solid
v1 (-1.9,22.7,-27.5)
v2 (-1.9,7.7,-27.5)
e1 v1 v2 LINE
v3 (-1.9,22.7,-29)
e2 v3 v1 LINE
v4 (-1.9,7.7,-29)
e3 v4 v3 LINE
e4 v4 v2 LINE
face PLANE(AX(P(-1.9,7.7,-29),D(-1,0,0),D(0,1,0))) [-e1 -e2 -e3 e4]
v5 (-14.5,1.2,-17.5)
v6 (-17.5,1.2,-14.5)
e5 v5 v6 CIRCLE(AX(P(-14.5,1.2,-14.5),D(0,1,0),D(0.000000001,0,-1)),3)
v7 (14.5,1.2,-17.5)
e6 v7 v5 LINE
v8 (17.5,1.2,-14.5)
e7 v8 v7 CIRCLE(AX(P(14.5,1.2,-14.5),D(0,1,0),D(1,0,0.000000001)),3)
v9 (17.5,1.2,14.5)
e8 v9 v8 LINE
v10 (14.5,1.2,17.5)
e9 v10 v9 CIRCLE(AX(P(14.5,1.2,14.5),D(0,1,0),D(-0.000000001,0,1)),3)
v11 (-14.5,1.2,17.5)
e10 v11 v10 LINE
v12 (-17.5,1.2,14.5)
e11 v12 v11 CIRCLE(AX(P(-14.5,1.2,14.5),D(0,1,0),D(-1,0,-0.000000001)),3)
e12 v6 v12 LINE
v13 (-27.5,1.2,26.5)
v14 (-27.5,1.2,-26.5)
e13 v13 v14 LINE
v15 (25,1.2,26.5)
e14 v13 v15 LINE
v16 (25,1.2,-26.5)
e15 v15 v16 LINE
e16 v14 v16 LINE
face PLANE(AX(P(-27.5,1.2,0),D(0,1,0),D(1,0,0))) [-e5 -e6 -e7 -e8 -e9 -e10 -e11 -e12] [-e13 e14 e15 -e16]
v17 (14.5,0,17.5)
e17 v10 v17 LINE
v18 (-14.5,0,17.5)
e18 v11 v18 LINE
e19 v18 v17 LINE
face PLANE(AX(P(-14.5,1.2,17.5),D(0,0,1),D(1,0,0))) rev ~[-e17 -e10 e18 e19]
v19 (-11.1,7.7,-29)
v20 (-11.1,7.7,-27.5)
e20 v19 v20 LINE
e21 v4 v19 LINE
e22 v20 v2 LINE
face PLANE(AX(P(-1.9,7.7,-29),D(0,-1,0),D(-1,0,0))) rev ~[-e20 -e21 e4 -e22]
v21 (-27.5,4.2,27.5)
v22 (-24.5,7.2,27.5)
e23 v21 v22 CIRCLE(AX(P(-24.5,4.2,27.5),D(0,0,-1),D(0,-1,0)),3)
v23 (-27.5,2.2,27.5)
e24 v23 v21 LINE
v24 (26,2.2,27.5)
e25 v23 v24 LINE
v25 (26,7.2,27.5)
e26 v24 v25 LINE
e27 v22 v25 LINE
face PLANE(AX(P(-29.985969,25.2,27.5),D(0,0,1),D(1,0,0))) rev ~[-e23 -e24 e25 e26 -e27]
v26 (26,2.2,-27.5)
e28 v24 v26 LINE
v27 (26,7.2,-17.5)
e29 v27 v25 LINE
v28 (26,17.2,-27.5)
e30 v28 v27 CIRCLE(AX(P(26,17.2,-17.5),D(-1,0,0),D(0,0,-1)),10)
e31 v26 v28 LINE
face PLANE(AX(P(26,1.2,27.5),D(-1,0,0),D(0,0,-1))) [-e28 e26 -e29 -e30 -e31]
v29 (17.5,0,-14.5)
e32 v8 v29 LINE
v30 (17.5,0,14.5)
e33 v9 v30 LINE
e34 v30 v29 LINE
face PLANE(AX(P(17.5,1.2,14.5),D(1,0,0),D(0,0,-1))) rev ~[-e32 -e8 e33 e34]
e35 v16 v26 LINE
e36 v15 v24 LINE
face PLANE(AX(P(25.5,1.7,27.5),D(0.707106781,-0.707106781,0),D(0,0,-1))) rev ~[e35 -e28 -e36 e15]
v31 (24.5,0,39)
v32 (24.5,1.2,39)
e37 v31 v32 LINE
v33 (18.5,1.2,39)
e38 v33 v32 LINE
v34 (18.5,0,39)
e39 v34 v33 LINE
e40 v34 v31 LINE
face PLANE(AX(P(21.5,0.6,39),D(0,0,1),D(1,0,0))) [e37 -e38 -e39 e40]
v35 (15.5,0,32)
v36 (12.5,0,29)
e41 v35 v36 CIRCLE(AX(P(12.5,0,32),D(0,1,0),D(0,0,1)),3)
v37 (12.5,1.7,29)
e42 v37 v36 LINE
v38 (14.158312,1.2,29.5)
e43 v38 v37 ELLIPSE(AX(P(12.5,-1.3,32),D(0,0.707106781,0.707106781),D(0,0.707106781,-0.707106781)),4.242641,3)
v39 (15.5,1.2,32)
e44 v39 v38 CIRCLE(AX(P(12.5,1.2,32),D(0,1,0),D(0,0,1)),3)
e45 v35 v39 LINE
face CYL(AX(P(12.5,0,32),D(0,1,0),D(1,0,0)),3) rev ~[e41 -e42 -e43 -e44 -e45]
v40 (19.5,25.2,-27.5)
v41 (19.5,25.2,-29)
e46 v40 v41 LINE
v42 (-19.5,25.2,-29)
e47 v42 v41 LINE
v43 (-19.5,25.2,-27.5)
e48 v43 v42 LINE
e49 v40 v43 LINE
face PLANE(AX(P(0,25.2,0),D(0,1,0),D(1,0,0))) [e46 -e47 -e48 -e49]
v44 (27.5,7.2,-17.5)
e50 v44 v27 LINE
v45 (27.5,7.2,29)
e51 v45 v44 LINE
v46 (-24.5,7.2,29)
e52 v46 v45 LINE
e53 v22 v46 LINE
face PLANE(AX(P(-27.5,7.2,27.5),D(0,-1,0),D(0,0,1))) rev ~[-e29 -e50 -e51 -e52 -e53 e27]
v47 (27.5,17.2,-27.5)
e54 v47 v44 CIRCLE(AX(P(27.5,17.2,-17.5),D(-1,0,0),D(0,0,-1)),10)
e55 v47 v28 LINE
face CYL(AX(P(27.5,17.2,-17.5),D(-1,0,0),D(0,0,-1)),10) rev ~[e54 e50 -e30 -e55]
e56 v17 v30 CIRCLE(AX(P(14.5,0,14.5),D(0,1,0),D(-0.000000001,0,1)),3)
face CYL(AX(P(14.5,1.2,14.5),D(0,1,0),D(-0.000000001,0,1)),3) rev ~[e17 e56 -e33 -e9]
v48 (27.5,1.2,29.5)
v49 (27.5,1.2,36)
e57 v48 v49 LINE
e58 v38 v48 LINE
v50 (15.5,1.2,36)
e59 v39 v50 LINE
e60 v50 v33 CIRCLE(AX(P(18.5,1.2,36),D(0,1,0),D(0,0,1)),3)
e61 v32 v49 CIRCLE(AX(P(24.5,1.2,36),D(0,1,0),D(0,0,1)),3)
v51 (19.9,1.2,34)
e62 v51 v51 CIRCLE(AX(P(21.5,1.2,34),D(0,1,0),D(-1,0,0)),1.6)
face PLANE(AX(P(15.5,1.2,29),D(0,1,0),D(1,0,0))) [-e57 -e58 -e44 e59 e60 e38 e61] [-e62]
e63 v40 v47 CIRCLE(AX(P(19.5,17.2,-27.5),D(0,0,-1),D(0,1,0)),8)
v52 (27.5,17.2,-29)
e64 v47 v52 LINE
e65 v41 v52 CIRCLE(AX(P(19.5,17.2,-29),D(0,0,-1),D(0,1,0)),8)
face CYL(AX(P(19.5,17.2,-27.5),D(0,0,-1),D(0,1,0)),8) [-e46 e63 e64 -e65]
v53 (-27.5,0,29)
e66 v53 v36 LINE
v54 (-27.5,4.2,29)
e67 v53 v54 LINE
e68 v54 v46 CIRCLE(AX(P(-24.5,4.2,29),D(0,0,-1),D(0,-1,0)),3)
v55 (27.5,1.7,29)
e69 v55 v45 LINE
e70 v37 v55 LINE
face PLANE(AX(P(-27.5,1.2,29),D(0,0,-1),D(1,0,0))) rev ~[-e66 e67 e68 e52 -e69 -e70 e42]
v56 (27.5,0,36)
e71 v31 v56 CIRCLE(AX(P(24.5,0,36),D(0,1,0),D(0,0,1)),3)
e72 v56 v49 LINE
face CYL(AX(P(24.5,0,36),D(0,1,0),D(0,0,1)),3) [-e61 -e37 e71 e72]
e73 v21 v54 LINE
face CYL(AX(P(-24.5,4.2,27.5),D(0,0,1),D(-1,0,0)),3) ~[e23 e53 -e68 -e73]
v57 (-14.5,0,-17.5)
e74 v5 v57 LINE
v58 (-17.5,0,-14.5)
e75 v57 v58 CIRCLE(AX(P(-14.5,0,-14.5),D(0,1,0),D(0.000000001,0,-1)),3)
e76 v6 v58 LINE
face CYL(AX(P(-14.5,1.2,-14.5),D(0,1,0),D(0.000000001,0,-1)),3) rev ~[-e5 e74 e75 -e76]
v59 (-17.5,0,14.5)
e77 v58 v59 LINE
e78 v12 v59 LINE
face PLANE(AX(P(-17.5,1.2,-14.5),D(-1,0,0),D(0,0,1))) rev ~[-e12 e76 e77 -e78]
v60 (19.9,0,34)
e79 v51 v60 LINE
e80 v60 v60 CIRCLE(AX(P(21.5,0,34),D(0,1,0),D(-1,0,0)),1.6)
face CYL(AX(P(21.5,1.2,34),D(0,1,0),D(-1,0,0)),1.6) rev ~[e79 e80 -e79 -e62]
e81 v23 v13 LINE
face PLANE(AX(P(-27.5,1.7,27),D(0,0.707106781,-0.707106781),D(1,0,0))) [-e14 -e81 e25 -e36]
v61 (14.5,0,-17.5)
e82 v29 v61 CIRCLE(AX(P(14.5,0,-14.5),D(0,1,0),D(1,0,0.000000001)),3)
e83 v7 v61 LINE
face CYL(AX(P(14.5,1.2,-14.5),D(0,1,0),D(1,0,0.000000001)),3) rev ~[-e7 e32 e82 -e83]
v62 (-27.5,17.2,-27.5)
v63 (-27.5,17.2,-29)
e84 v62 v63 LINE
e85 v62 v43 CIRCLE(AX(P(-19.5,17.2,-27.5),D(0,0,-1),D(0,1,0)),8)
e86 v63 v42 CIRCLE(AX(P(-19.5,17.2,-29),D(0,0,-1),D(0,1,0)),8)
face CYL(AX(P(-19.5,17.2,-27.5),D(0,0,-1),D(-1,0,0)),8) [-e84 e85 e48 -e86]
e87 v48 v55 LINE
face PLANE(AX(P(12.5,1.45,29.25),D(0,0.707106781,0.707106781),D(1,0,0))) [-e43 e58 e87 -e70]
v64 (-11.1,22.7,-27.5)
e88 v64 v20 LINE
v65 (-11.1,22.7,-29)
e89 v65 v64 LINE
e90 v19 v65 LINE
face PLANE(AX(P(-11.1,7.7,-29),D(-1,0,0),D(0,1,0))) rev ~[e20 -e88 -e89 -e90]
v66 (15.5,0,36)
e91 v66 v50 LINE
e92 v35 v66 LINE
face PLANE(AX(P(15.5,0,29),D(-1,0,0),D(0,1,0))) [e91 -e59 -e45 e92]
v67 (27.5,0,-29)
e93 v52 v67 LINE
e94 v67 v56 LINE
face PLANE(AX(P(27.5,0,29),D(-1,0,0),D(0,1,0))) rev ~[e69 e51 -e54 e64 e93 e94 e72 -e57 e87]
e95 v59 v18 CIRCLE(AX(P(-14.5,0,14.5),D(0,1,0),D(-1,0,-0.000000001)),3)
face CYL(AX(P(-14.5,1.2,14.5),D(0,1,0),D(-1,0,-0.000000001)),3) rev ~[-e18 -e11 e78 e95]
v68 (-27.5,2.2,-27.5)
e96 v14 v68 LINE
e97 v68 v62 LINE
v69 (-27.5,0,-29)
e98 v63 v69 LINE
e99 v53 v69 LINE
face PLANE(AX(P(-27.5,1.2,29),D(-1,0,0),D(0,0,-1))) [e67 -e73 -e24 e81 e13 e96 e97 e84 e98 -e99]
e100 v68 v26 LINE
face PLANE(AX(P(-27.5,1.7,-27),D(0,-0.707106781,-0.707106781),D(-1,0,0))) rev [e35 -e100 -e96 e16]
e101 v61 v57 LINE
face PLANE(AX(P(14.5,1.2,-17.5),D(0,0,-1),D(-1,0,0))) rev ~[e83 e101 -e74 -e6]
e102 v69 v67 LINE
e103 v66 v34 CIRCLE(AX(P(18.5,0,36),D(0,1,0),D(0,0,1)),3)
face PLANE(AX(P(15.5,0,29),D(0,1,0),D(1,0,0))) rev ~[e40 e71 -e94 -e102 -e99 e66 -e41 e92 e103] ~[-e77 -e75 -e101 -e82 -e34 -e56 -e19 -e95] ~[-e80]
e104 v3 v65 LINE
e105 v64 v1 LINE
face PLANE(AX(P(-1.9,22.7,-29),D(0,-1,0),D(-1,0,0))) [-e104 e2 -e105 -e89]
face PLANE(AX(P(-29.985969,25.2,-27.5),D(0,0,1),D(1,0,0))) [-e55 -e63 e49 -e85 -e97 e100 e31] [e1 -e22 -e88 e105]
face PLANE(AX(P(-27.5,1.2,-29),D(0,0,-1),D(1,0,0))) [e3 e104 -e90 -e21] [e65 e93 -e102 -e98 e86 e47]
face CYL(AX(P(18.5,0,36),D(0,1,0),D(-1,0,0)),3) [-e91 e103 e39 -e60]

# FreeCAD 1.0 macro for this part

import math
import FreeCAD as App
import Part
import Sketcher


def edges_at(feature, points):
    """Names of the edges that pass closest to the given points."""
    edges = feature.Shape.Edges
    near = lambda p: min(range(len(edges)), key=lambda i: edges[i].distToShape(Part.Vertex(*p))[0])
    return sorted({f"Edge{near(p) + 1}" for p in points})


def add_polygon(sketch, points):
    """Adds a closed chain of lines whose ends are joined by coincident constraints."""
    first, n = sketch.GeometryCount, len(points)
    for a, b in zip(points, points[1:] + points[:1]):
        sketch.addGeometry(Part.LineSegment(App.Vector(*a, 0), App.Vector(*b, 0)), False)
    for i in range(n):
        sketch.addConstraint(Sketcher.Constraint("Coincident", first + i, 2, first + (i + 1) % n, 1))

doc = App.newDocument("Part")
params = doc.addObject("Spreadsheet::Sheet", "Params")
for row, (alias, value) in enumerate([
    ("sketch1_width", "55 mm"),
    ("sketch1_height", "58 mm"),
    ("pad1_length", "1.2 mm"),
    ("sketch2_width", "55 mm"),
    ("sketch2_width2", "52 mm"),
    ("sketch2_height", "58 mm"),
    ("pad2_length", "24 mm"),
    ("sketch3_height", "55 mm"),
    ("pocket1_length", "24 mm"),
    ("sketch4_height", "15 mm"),
    ("sketch4_width", "9.2 mm"),
    ("pocket2_length", "17 mm"),
    ("sketch5_width", "18 mm"),
    ("sketch5_height", "1.5 mm"),
    ("fillet_radius", "8 mm"),
    ("fillet2_radius", "3 mm"),
    ("chamfer_size", "1 mm"),
    ("sketch6_radius", "3 mm"),
    ("sketch6_width", "29 mm"),
    ("pocket4_length", "17 mm"),
    ("sketch7_width", "18 mm"),
    ("sketch7_height", "55 mm"),
    ("pocket5_length", "17 mm"),
    ("fillet3_radius", "8 mm"),
    ("fillet4_radius", "10 mm"),
    ("sketch8_width", "12 mm"),
    ("sketch8_height", "1.2 mm"),
    ("pad3_length", "10 mm"),
    ("sketch9_diameter", "3.2 mm"),
    ("pocket6_length", "10 mm"),
    ("fillet5_radius", "3 mm"),
    ("fillet6_radius", "3 mm"),
    ("fillet7_radius", "3 mm"),
    ("chamfer2_size", "0.5 mm"),
], start=1):
    params.set(f"A{row}", alias)
    params.set(f"B{row}", "=" + value)
    params.setAlias(f"B{row}", alias)

body = doc.addObject("PartDesign::Body", "Body")

# Sketch on XZ plane
sketch1 = doc.addObject("Sketcher::SketchObject", "Sketch")
body.addObject(sketch1)
sketch1.AttachmentSupport = (doc.XZ_Plane, [""])
sketch1.MapMode = "FlatFace"
add_polygon(sketch1, [(-28, -29), (-28, 29), (28, 29), (28, -29)])  # lines 0-3
sketch1.addConstraint(Sketcher.Constraint("Vertical", 0))
sketch1.addConstraint(Sketcher.Constraint("Horizontal", 1))
sketch1.addConstraint(Sketcher.Constraint("Vertical", 2))
sketch1.addConstraint(Sketcher.Constraint("Horizontal", 3))
sketch1.addConstraint(Sketcher.Constraint("Symmetric", 0, 2, 2, 2, -1, 1))
sketch1.addConstraint(Sketcher.Constraint("DistanceX", 1, 1, 1, 2, 55.0))
sketch1.addConstraint(Sketcher.Constraint("DistanceY", 0, 1, 0, 2, 58.0))
sketch1.setExpression("Constraints[9]", "Params.sketch1_width")
sketch1.setExpression("Constraints[10]", "Params.sketch1_height")
pad1 = doc.addObject("PartDesign::Pad", "Pad")
body.addObject(pad1)
pad1.Profile = sketch1
pad1.setExpression("Length", "Params.pad1_length")
pad1.Reversed = True

# Sketch on XZ plane
sketch2 = doc.addObject("Sketcher::SketchObject", "Sketch001")
body.addObject(sketch2)
sketch2.AttachmentSupport = (doc.XZ_Plane, [""])
sketch2.MapMode = "FlatFace"
sketch2.AttachmentOffset = App.Placement(App.Vector(0, 0, -1.2), App.Rotation())
add_polygon(sketch2, [(-28, -29), (-28, 29), (28, 29), (28, -29)])  # lines 0-3
add_polygon(sketch2, [(26, 28), (-26, 28), (-26, -28), (26, -28)])  # lines 4-7
sketch2.addConstraint(Sketcher.Constraint("Vertical", 0))
sketch2.addConstraint(Sketcher.Constraint("Horizontal", 1))
sketch2.addConstraint(Sketcher.Constraint("Vertical", 2))
sketch2.addConstraint(Sketcher.Constraint("Horizontal", 3))
sketch2.addConstraint(Sketcher.Constraint("Horizontal", 4))
sketch2.addConstraint(Sketcher.Constraint("Vertical", 5))
sketch2.addConstraint(Sketcher.Constraint("Horizontal", 6))
sketch2.addConstraint(Sketcher.Constraint("Vertical", 7))
sketch2.addConstraint(Sketcher.Constraint("Symmetric", 0, 2, 2, 2, -1, 1))
sketch2.addConstraint(Sketcher.Constraint("Symmetric", 4, 2, 6, 2, -1, 1))
sketch2.addConstraint(Sketcher.Constraint("Equal", 3, 5))
sketch2.addConstraint(Sketcher.Constraint("DistanceX", 1, 1, 1, 2, 55.0))
sketch2.addConstraint(Sketcher.Constraint("DistanceX", 4, 2, 4, 1, 52.0))
sketch2.addConstraint(Sketcher.Constraint("DistanceY", 0, 1, 0, 2, 58.0))
sketch2.setExpression("Constraints[19]", "Params.sketch2_width")
sketch2.setExpression("Constraints[20]", "Params.sketch2_width2")
sketch2.setExpression("Constraints[21]", "Params.sketch2_height")
pad2 = doc.addObject("PartDesign::Pad", "Pad001")
body.addObject(pad2)
pad2.Profile = sketch2
pad2.setExpression("Length", "Params.pad2_length")
pad2.Reversed = True

# Sketch on XZ plane
sketch3 = doc.addObject("Sketcher::SketchObject", "Sketch002")
body.addObject(sketch3)
sketch3.AttachmentSupport = (doc.XZ_Plane, [""])
sketch3.MapMode = "FlatFace"
sketch3.AttachmentOffset = App.Placement(App.Vector(0, 0, -25.2), App.Rotation())
add_polygon(sketch3, [(-30, -27.5), (-30, 27.5), (-25, 27.5), (-25, -27.5)])  # lines 0-3
sketch3.addConstraint(Sketcher.Constraint("Vertical", 0))
sketch3.addConstraint(Sketcher.Constraint("Horizontal", 1))
sketch3.addConstraint(Sketcher.Constraint("Vertical", 2))
sketch3.addConstraint(Sketcher.Constraint("Horizontal", 3))
sketch3.addConstraint(Sketcher.Constraint("DistanceY", 0, 1, 0, 2, 55.0))
sketch3.addConstraint(Sketcher.Constraint("DistanceY", -1, 1, 0, 2, 27.5))
sketch3.addConstraint(Sketcher.Constraint("DistanceX", 1, 1, 1, 2, 4.971938))
sketch3.addConstraint(Sketcher.Constraint("DistanceX", 0, 2, -1, 1, 29.985969))
sketch3.setExpression("Constraints[8]", "Params.sketch3_height")
pocket1 = doc.addObject("PartDesign::Pocket", "Pocket")
body.addObject(pocket1)
pocket1.Profile = sketch3
pocket1.setExpression("Length", "Params.pocket1_length")
pocket1.Reversed = True

# Sketch on XY plane
sketch4 = doc.addObject("Sketcher::SketchObject", "Sketch003")
body.addObject(sketch4)
sketch4.AttachmentSupport = (doc.XY_Plane, [""])
sketch4.MapMode = "FlatFace"
sketch4.AttachmentOffset = App.Placement(App.Vector(0, 0, -29), App.Rotation())
add_polygon(sketch4, [(-2, 23), (-2, 8), (-11, 8), (-11, 23)])  # lines 0-3
sketch4.addConstraint(Sketcher.Constraint("Vertical", 0))
sketch4.addConstraint(Sketcher.Constraint("Horizontal", 1))
sketch4.addConstraint(Sketcher.Constraint("Vertical", 2))
sketch4.addConstraint(Sketcher.Constraint("Horizontal", 3))
sketch4.addConstraint(Sketcher.Constraint("DistanceY", 0, 2, 0, 1, 15.0))
sketch4.addConstraint(Sketcher.Constraint("DistanceX", 1, 2, 1, 1, 9.2))
sketch4.addConstraint(Sketcher.Constraint("DistanceX", 0, 2, -1, 1, 1.9))
sketch4.addConstraint(Sketcher.Constraint("DistanceY", -1, 1, 0, 2, 7.7))
sketch4.setExpression("Constraints[8]", "Params.sketch4_height")
sketch4.setExpression("Constraints[9]", "Params.sketch4_width")
pocket2 = doc.addObject("PartDesign::Pocket", "Pocket001")
body.addObject(pocket2)
pocket2.Profile = sketch4
pocket2.setExpression("Length", "Params.pocket2_length")
pocket2.Reversed = True

# Sketch on YZ plane
sketch5 = doc.addObject("Sketcher::SketchObject", "Sketch004")
body.addObject(sketch5)
sketch5.AttachmentSupport = (doc.YZ_Plane, [""])
sketch5.MapMode = "FlatFace"
sketch5.AttachmentOffset = App.Placement(App.Vector(0, 0, -27.5), App.Rotation())
add_polygon(sketch5, [(25.2, 27.5), (7.2, 27.5), (7.2, 29), (25.2, 29)])  # lines 0-3
sketch5.addConstraint(Sketcher.Constraint("Horizontal", 0))
sketch5.addConstraint(Sketcher.Constraint("Vertical", 1))
sketch5.addConstraint(Sketcher.Constraint("Horizontal", 2))
sketch5.addConstraint(Sketcher.Constraint("Vertical", 3))
sketch5.addConstraint(Sketcher.Constraint("DistanceX", 0, 2, 0, 1, 18.0))
sketch5.addConstraint(Sketcher.Constraint("DistanceY", 1, 1, 1, 2, 1.5))
sketch5.addConstraint(Sketcher.Constraint("DistanceY", -1, 1, 1, 2, 29.0))
sketch5.addConstraint(Sketcher.Constraint("DistanceX", -1, 1, 0, 2, 7.2))
sketch5.setExpression("Constraints[8]", "Params.sketch5_width")
sketch5.setExpression("Constraints[9]", "Params.sketch5_height")
pocket3 = doc.addObject("PartDesign::Pocket", "Pocket002")
body.addObject(pocket3)
pocket3.Profile = sketch5
pocket3.Type = "ThroughAll"
pocket3.Reversed = True
doc.recompute()

fillet = doc.addObject("PartDesign::Fillet", "Fillet")
body.addObject(fillet)
fillet.Base = (pocket3, edges_at(pocket3, [(-27.5, 25.2, -28.25)]))
fillet.setExpression("Radius", "Params.fillet_radius")
doc.recompute()

fillet2 = doc.addObject("PartDesign::Fillet", "Fillet001")
body.addObject(fillet2)
fillet2.Base = (fillet, edges_at(fillet, [(-27.5, 7.2, 28.25)]))
fillet2.setExpression("Radius", "Params.fillet2_radius")
doc.recompute()

chamfer = doc.addObject("PartDesign::Chamfer", "Chamfer")
body.addObject(chamfer)
chamfer.Base = (fillet2, edges_at(fillet2, [(26, 1.2, 0), (-0.75, 1.2, -27.5), (-0.75, 1.2, 27.5)]))
chamfer.setExpression("Size", "Params.chamfer_size")

# Sketch on XZ plane
sketch6 = doc.addObject("Sketcher::SketchObject", "Sketch005")
body.addObject(sketch6)
sketch6.AttachmentSupport = (doc.XZ_Plane, [""])
sketch6.MapMode = "FlatFace"
sketch6.AttachmentOffset = App.Placement(App.Vector(0, 0, -1.2), App.Rotation())
sketch6.addGeometry(Part.LineSegment(App.Vector(-14.5, 17.5, 0), App.Vector(14.5, 17.5, 0)), False)
sketch6.addGeometry(Part.ArcOfCircle(Part.Circle(App.Vector(14.5, 14.5, 0), App.Vector(0, 0, 1), 3), math.radians(0), math.radians(90)), False)
sketch6.addGeometry(Part.LineSegment(App.Vector(17.5, 14.5, 0), App.Vector(17.5, -14.5, 0)), False)
sketch6.addGeometry(Part.ArcOfCircle(Part.Circle(App.Vector(14.5, -14.5, 0), App.Vector(0, 0, 1), 3), math.radians(-90), math.radians(0)), False)
sketch6.addGeometry(Part.LineSegment(App.Vector(14.5, -17.5, 0), App.Vector(-14.5, -17.5, 0)), False)
sketch6.addGeometry(Part.ArcOfCircle(Part.Circle(App.Vector(-14.5, -14.5, 0), App.Vector(0, 0, 1), 3), math.radians(180), math.radians(270)), False)
sketch6.addGeometry(Part.LineSegment(App.Vector(-17.5, -14.5, 0), App.Vector(-17.5, 14.5, 0)), False)
sketch6.addGeometry(Part.ArcOfCircle(Part.Circle(App.Vector(-14.5, 14.5, 0), App.Vector(0, 0, 1), 3), math.radians(90), math.radians(180)), False)
sketch6.addConstraint(Sketcher.Constraint("Tangent", 0, 2, 1, 2))
sketch6.addConstraint(Sketcher.Constraint("Tangent", 1, 1, 2, 1))
sketch6.addConstraint(Sketcher.Constraint("Tangent", 2, 2, 3, 2))
sketch6.addConstraint(Sketcher.Constraint("Tangent", 3, 1, 4, 1))
sketch6.addConstraint(Sketcher.Constraint("Tangent", 4, 2, 5, 2))
sketch6.addConstraint(Sketcher.Constraint("Tangent", 5, 1, 6, 1))
sketch6.addConstraint(Sketcher.Constraint("Tangent", 6, 2, 7, 2))
sketch6.addConstraint(Sketcher.Constraint("Tangent", 7, 1, 0, 1))
sketch6.addConstraint(Sketcher.Constraint("Horizontal", 0))
sketch6.addConstraint(Sketcher.Constraint("Vertical", 2))
sketch6.addConstraint(Sketcher.Constraint("Horizontal", 4))
sketch6.addConstraint(Sketcher.Constraint("Vertical", 6))
sketch6.addConstraint(Sketcher.Constraint("Equal", 1, 3))
sketch6.addConstraint(Sketcher.Constraint("Equal", 3, 5))
sketch6.addConstraint(Sketcher.Constraint("Equal", 5, 7))
sketch6.addConstraint(Sketcher.Constraint("Symmetric", 1, 3, 5, 3, -1, 1))
sketch6.addConstraint(Sketcher.Constraint("Equal", 4, 2))
sketch6.addConstraint(Sketcher.Constraint("Radius", 1, 3.0))
sketch6.addConstraint(Sketcher.Constraint("DistanceX", 0, 1, 0, 2, 29.0))
sketch6.setExpression("Constraints[17]", "Params.sketch6_radius")
sketch6.setExpression("Constraints[18]", "Params.sketch6_width")
pocket4 = doc.addObject("PartDesign::Pocket", "Pocket003")
body.addObject(pocket4)
pocket4.Profile = sketch6
pocket4.setExpression("Length", "Params.pocket4_length")
pocket4.Reversed = True

# Sketch on YZ plane
sketch7 = doc.addObject("Sketcher::SketchObject", "Sketch006")
body.addObject(sketch7)
sketch7.AttachmentSupport = (doc.YZ_Plane, [""])
sketch7.MapMode = "FlatFace"
sketch7.AttachmentOffset = App.Placement(App.Vector(0, 0, 27.5), App.Rotation())
add_polygon(sketch7, [(25, 28), (7, 28), (7, -28), (25, -28)])  # lines 0-3
sketch7.addConstraint(Sketcher.Constraint("Horizontal", 0))
sketch7.addConstraint(Sketcher.Constraint("Vertical", 1))
sketch7.addConstraint(Sketcher.Constraint("Horizontal", 2))
sketch7.addConstraint(Sketcher.Constraint("Vertical", 3))
sketch7.addConstraint(Sketcher.Constraint("DistanceX", 0, 2, 0, 1, 18.0))
sketch7.addConstraint(Sketcher.Constraint("DistanceY", 1, 2, 1, 1, 55.0))
sketch7.addConstraint(Sketcher.Constraint("DistanceX", -1, 1, 0, 2, 7.2))
sketch7.addConstraint(Sketcher.Constraint("DistanceY", -1, 1, 0, 2, 27.5))
sketch7.setExpression("Constraints[8]", "Params.sketch7_width")
sketch7.setExpression("Constraints[9]", "Params.sketch7_height")
pocket5 = doc.addObject("PartDesign::Pocket", "Pocket004")
body.addObject(pocket5)
pocket5.Profile = sketch7
pocket5.setExpression("Length", "Params.pocket5_length")
doc.recompute()

fillet3 = doc.addObject("PartDesign::Fillet", "Fillet002")
body.addObject(fillet3)
fillet3.Base = (pocket5, edges_at(pocket5, [(27.5, 25.2, -28.25)]))
fillet3.setExpression("Radius", "Params.fillet3_radius")
doc.recompute()

fillet4 = doc.addObject("PartDesign::Fillet", "Fillet003")
body.addObject(fillet4)
fillet4.Base = (fillet3, edges_at(fillet3, [(26.75, 7.2, -27.5)]))
fillet4.setExpression("Radius", "Params.fillet4_radius")

# Sketch on XY plane
sketch8 = doc.addObject("Sketcher::SketchObject", "Sketch007")
body.addObject(sketch8)
sketch8.AttachmentSupport = (doc.XY_Plane, [""])
sketch8.MapMode = "FlatFace"
sketch8.AttachmentOffset = App.Placement(App.Vector(0, 0, 29), App.Rotation())
add_polygon(sketch8, [(15.5, 1.2), (15.5, 0), (27.5, 0), (27.5, 1.2)])  # lines 0-3
sketch8.addConstraint(Sketcher.Constraint("Vertical", 0))
sketch8.addConstraint(Sketcher.Constraint("Horizontal", 1))
sketch8.addConstraint(Sketcher.Constraint("Vertical", 2))
sketch8.addConstraint(Sketcher.Constraint("Horizontal", 3))
sketch8.addConstraint(Sketcher.Constraint("PointOnObject", 0, 2, -1))
sketch8.addConstraint(Sketcher.Constraint("DistanceX", 1, 1, 1, 2, 12.0))
sketch8.addConstraint(Sketcher.Constraint("DistanceY", 0, 2, 0, 1, 1.2))
sketch8.addConstraint(Sketcher.Constraint("DistanceX", -1, 1, 0, 2, 15.5))
sketch8.setExpression("Constraints[9]", "Params.sketch8_width")
sketch8.setExpression("Constraints[10]", "Params.sketch8_height")
pad3 = doc.addObject("PartDesign::Pad", "Pad002")
body.addObject(pad3)
pad3.Profile = sketch8
pad3.setExpression("Length", "Params.pad3_length")

# Sketch on XZ plane
sketch9 = doc.addObject("Sketcher::SketchObject", "Sketch008")
body.addObject(sketch9)
sketch9.AttachmentSupport = (doc.XZ_Plane, [""])
sketch9.MapMode = "FlatFace"
sketch9.AttachmentOffset = App.Placement(App.Vector(0, 0, -1.2), App.Rotation())
sketch9.addGeometry(Part.Circle(App.Vector(21.5, 34, 0), App.Vector(0, 0, 1), 1.6), False)
sketch9.addConstraint(Sketcher.Constraint("Diameter", 0, 3.2))
sketch9.addConstraint(Sketcher.Constraint("DistanceY", -1, 1, 0, 3, 34.0))
sketch9.addConstraint(Sketcher.Constraint("DistanceX", -1, 1, 0, 3, 21.5))
sketch9.setExpression("Constraints[0]", "Params.sketch9_diameter")
pocket6 = doc.addObject("PartDesign::Pocket", "Pocket005")
body.addObject(pocket6)
pocket6.Profile = sketch9
pocket6.setExpression("Length", "Params.pocket6_length")
pocket6.Reversed = True
doc.recompute()

fillet5 = doc.addObject("PartDesign::Fillet", "Fillet004")
body.addObject(fillet5)
fillet5.Base = (pocket6, edges_at(pocket6, [(15.5, 0.6, 39)]))
fillet5.setExpression("Radius", "Params.fillet5_radius")
doc.recompute()

fillet6 = doc.addObject("PartDesign::Fillet", "Fillet005")
body.addObject(fillet6)
fillet6.Base = (fillet5, edges_at(fillet5, [(27.5, 0.6, 39)]))
fillet6.setExpression("Radius", "Params.fillet6_radius")
doc.recompute()

fillet7 = doc.addObject("PartDesign::Fillet", "Fillet006")
body.addObject(fillet7)
fillet7.Base = (fillet6, edges_at(fillet6, [(15.5, 0.6, 29)]))
fillet7.setExpression("Radius", "Params.fillet7_radius")
doc.recompute()

chamfer2 = doc.addObject("PartDesign::Chamfer", "Chamfer001")
body.addObject(chamfer2)
chamfer2.Base = (fillet7, edges_at(fillet7, [(20, 1.2, 29)]))
chamfer2.setExpression("Size", "Params.chamfer2_size")

doc.recompute()
